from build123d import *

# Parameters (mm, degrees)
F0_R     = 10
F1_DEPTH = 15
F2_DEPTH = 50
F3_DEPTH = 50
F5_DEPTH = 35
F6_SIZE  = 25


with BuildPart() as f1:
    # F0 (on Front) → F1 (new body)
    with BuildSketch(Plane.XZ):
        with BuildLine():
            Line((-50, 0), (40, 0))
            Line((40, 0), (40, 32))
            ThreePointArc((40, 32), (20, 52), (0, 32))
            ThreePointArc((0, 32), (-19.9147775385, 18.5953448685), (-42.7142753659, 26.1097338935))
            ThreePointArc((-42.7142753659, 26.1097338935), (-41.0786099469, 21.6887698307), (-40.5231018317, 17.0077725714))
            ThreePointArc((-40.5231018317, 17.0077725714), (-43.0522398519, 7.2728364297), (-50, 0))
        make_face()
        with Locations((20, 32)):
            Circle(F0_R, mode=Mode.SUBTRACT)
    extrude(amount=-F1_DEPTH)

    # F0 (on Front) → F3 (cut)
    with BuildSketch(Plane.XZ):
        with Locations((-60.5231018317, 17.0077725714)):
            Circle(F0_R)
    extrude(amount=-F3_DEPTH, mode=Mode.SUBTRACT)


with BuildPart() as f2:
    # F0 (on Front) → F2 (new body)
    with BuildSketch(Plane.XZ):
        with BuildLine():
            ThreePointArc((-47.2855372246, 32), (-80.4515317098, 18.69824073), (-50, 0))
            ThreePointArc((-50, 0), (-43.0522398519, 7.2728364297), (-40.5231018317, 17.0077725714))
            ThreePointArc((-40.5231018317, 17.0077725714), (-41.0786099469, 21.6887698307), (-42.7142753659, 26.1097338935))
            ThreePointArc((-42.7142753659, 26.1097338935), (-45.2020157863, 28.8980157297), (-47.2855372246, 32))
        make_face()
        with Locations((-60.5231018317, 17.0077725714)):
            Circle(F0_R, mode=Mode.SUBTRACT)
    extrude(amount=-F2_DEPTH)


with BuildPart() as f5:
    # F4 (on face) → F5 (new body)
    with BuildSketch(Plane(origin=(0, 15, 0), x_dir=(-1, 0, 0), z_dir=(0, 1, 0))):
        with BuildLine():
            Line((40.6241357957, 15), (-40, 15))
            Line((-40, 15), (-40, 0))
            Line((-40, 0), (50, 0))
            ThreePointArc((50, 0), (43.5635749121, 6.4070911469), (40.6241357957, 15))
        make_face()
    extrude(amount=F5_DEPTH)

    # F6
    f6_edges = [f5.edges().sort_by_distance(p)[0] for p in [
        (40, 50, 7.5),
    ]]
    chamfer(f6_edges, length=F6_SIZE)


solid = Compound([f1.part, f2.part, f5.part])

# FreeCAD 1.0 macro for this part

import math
import FreeCAD as App
import Part
import Sketcher

V = App.Vector


def edges_at(feature, points):
    """Names of the edges that pass closest to the given points."""
    edges = feature.Shape.Edges
    near = lambda p: min(range(len(edges)), key=lambda i: edges[i].distToShape(Part.Vertex(*p))[0])
    return sorted({f"Edge{near(p) + 1}" for p in points})

doc = App.newDocument("Part")
body = doc.addObject("PartDesign::Body", "Body")

sketch1 = doc.addObject("Sketcher::SketchObject", "Sketch")
body.addObject(sketch1)
sketch1.AttachmentSupport = (doc.XZ_Plane, [""])
sketch1.MapMode = "FlatFace"
sketch1.addGeometry([
    Part.LineSegment(V(-50, 0, 0), V(40, 0, 0)),
    Part.LineSegment(V(40, 0, 0), V(40, 32, 0)),
    Part.ArcOfCircle(Part.Circle(V(20, 32, 0), V(0, 0, 1), 20), math.radians(0), math.radians(180)),
    Part.ArcOfCircle(Part.Circle(V(-24, 46, 0), V(0, 0, 1), 27), math.radians(-134), math.radians(-30)),
    Part.ArcOfCircle(Part.Circle(V(-61, 17, 0), V(0, 0, 1), 20), math.radians(0), math.radians(27)),
    Part.ArcOfCircle(Part.Circle(V(-61, 17, 0), V(0, 0, 1), 20), math.radians(-58), math.radians(0)),
    Part.Circle(V(20, 32, 0), V(0, 0, 1), 10),
], False)
sketch1.addConstraint([
    Sketcher.Constraint("Coincident", 0, 2, 1, 1),
    Sketcher.Constraint("Tangent", 1, 2, 2, 1),
    Sketcher.Constraint("Coincident", 2, 2, 3, 2),
    Sketcher.Constraint("Coincident", 3, 1, 4, 2),
    Sketcher.Constraint("Tangent", 4, 1, 5, 2),
    Sketcher.Constraint("Coincident", 5, 1, 0, 1),
    Sketcher.Constraint("Horizontal", 0),
    Sketcher.Constraint("Vertical", 1),
    Sketcher.Constraint("Coincident", 6, 3, 2, 3),
    Sketcher.Constraint("Equal", 2, 4),
    Sketcher.Constraint("Equal", 4, 5),
    Sketcher.Constraint("PointOnObject", 0, 2, -1),
    Sketcher.Constraint("PointOnObject", 2, 2, -2),
    Sketcher.Constraint("Horizontal", 1, 2, 2, 2),
    Sketcher.Constraint("Horizontal", 5, 3, 4, 1),
    Sketcher.Constraint("Diameter", 6, 20.0),
    Sketcher.Constraint("Radius", 2, 20.0),
    Sketcher.Constraint("DistanceX", 0, 1, 0, 2, 90.0),
    Sketcher.Constraint("DistanceY", 1, 1, 1, 2, 32.0),
    Sketcher.Constraint("Radius", 3, 27.29),
    Sketcher.Constraint("DistanceX", 4, 3, -1, 1, 60.523102),
    Sketcher.Constraint("DistanceX", 3, 3, -1, 1, 23.642769),
])
pad1 = doc.addObject("PartDesign::Pad", "Pad")
body.addObject(pad1)
pad1.Profile = sketch1
pad1.Length = 15
pad1.Reversed = True

sketch2 = doc.addObject("Sketcher::SketchObject", "Sketch001")
body.addObject(sketch2)
sketch2.AttachmentSupport = (doc.XZ_Plane, [""])
sketch2.MapMode = "FlatFace"
sketch2.addGeometry(Part.Circle(V(-61, 17, 0), V(0, 0, 1), 10), False)
sketch2.addConstraint([
    Sketcher.Constraint("Diameter", 0, 20.0),
    Sketcher.Constraint("DistanceX", 0, 3, -1, 1, 60.523102),
    Sketcher.Constraint("DistanceY", -1, 1, 0, 3, 17.007773),
])
pocket1 = doc.addObject("PartDesign::Pocket", "Pocket")
body.addObject(pocket1)
pocket1.Profile = sketch2
pocket1.Length = 50
body2 = doc.addObject("PartDesign::Body", "Body001")

sketch3 = doc.addObject("Sketcher::SketchObject", "Sketch002")
body2.addObject(sketch3)
sketch3.AttachmentSupport = (doc.getObject("XZ_Plane001"), [""])
sketch3.MapMode = "FlatFace"
sketch3.addGeometry([
    Part.ArcOfCircle(Part.Circle(V(-61, 17, 0), V(0, 0, 1), 20), math.radians(49), math.radians(360)),
    Part.ArcOfCircle(Part.Circle(V(-61, 17, 0), V(0, 0, 1), 20), math.radians(0), math.radians(27)),
    Part.ArcOfCircle(Part.Circle(V(-24, 46, 0), V(0, 0, 1), 27), math.radians(-150.04), math.radians(-134.33)),
    Part.Circle(V(-61, 17, 0), V(0, 0, 1), 10),
], False)
sketch3.addConstraint([
    Sketcher.Constraint("Tangent", 0, 2, 1, 1),
    Sketcher.Constraint("Coincident", 1, 2, 2, 2),
    Sketcher.Constraint("Coincident", 2, 1, 0, 1),
    Sketcher.Constraint("Coincident", 3, 3, 0, 3),
    Sketcher.Constraint("Equal", 0, 1),
    Sketcher.Constraint("Horizontal", 3, 3, 0, 2),
    Sketcher.Constraint("Diameter", 3, 20.0),
    Sketcher.Constraint("Radius", 0, 20.0),
    Sketcher.Constraint("Radius", 2, 27.29),
    Sketcher.Constraint("DistanceY", -1, 1, 2, 1, 32.0),
    Sketcher.Constraint("DistanceX", 0, 3, -1, 1, 60.523102),
    Sketcher.Constraint("DistanceX", 2, 3, -1, 1, 23.642769),
    Sketcher.Constraint("DistanceY", -1, 1, 2, 3, 45.629512),
])
pad2 = doc.addObject("PartDesign::Pad", "Pad001")
body2.addObject(pad2)
pad2.Profile = sketch3
pad2.Length = 50
pad2.Reversed = True
body3 = doc.addObject("PartDesign::Body", "Body002")

sketch4 = doc.addObject("Sketcher::SketchObject", "Sketch003")
body3.addObject(sketch4)
sketch4.AttachmentSupport = (doc.getObject("XZ_Plane002"), [""])
sketch4.MapMode = "FlatFace"
sketch4.AttachmentOffset = App.Placement(V(0, 0, -15), App.Rotation())
sketch4.addGeometry([
    Part.LineSegment(V(-41, 15, 0), V(40, 15, 0)),
    Part.LineSegment(V(40, 15, 0), V(40, 0, 0)),
    Part.LineSegment(V(40, 0, 0), V(-50, 0, 0)),
    Part.ArcOfCircle(Part.Circle(V(-61, 17, 0), V(0, 0, 1), 20), math.radians(-58), math.radians(-6)),
], False)
sketch4.addConstraint([
    Sketcher.Constraint("Coincident", 0, 2, 1, 1),
    Sketcher.Constraint("Coincident", 1, 2, 2, 1),
    Sketcher.Constraint("Coincident", 2, 2, 3, 1),
    Sketcher.Constraint("Coincident", 3, 2, 0, 1),
    Sketcher.Constraint("Horizontal", 0),
    Sketcher.Constraint("Vertical", 1),
    Sketcher.Constraint("Horizontal", 2),
    Sketcher.Constraint("PointOnObject", 1, 2, -1),
    Sketcher.Constraint("Radius", 3, 20.0),
    Sketcher.Constraint("DistanceX", 2, 2, 2, 1, 90.0),
    Sketcher.Constraint("DistanceY", 1, 2, 1, 1, 15.0),
    Sketcher.Constraint("DistanceX", -1, 1, 0, 2, 40.0),
    Sketcher.Constraint("DistanceX", 3, 3, -1, 1, 60.523102),
])
pad3 = doc.addObject("PartDesign::Pad", "Pad002")
body3.addObject(pad3)
pad3.Profile = sketch4
pad3.Length = 35
pad3.Reversed = True
doc.recompute()

chamfer = doc.addObject("PartDesign::Chamfer", "Chamfer")
body3.addObject(chamfer)
chamfer.Base = (pad3, edges_at(pad3, [(40, 50, 7.5)]))
chamfer.Size = 25

doc.recompute()
